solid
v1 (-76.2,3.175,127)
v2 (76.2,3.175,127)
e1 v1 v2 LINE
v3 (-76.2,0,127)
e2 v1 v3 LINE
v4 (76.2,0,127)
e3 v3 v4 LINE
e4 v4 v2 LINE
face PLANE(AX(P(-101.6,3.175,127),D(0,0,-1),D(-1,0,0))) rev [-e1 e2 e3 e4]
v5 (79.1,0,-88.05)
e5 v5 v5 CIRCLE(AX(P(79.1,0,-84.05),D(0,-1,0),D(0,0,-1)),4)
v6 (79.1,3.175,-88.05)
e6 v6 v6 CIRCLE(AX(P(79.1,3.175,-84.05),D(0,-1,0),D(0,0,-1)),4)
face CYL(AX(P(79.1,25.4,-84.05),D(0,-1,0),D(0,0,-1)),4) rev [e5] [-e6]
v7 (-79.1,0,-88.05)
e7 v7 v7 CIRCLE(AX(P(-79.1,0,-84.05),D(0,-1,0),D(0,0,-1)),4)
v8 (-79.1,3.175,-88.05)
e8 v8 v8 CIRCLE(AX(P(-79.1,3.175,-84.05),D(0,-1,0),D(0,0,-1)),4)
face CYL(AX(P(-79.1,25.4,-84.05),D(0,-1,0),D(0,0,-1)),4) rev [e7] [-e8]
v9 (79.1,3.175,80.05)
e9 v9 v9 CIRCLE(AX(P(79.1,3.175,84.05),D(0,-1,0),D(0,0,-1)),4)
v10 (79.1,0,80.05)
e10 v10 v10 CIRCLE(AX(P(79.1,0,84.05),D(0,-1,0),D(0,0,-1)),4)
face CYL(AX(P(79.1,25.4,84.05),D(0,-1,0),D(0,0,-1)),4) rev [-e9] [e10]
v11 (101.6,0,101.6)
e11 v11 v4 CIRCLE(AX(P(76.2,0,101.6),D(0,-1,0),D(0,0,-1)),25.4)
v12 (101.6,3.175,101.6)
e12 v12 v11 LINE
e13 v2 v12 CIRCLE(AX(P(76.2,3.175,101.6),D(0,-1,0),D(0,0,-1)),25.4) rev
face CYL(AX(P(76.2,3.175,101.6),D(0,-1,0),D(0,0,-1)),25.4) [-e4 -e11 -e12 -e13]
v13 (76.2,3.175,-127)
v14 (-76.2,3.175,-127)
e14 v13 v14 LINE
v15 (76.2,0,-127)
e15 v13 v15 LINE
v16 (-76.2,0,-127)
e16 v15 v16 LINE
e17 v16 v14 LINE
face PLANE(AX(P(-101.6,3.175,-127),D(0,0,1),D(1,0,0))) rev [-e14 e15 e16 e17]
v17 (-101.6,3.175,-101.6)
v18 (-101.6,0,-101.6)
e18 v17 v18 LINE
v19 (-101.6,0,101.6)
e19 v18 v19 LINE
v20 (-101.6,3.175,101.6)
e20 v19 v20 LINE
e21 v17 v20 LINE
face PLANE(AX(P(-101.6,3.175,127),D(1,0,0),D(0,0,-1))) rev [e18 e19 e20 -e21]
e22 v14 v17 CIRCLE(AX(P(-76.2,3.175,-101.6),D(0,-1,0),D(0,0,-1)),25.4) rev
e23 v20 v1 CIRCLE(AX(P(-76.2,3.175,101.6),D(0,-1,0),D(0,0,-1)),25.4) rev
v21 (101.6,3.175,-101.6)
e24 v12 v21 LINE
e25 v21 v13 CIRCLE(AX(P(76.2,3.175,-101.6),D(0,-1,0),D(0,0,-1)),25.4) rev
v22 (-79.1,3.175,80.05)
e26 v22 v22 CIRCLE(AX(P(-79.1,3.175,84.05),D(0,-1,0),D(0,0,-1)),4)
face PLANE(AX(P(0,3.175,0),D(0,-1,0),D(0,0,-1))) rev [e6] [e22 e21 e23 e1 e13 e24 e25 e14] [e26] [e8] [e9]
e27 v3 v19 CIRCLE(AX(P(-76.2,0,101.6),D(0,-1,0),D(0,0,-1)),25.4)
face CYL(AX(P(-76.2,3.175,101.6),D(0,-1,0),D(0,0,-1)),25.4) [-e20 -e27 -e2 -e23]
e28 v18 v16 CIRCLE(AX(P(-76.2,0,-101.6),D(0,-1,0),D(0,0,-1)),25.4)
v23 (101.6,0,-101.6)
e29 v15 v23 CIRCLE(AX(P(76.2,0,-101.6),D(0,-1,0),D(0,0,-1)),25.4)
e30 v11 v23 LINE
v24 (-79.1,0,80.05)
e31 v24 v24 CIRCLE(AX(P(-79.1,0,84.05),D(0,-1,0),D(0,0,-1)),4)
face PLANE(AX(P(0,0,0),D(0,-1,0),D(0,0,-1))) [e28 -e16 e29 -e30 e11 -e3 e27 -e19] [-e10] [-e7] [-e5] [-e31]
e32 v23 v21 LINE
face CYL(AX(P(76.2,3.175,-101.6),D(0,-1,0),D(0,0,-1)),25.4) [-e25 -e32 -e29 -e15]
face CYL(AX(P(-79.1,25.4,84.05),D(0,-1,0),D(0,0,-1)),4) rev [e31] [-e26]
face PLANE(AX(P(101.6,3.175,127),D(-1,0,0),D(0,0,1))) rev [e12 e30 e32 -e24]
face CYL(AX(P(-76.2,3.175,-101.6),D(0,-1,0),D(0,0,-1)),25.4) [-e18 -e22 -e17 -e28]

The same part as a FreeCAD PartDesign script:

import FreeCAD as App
import Part
import Sketcher
from FreeCAD import Vector
Q = App.Units.Quantity


def edges_at(feature, points):
    """Names of the edges that pass closest to the given points."""
    edges = feature.Shape.Edges
    near = lambda p: min(range(len(edges)), key=lambda i: edges[i].distToShape(Part.Vertex(*p))[0])
    return sorted({f"Edge{near(p) + 1}" for p in points})


def add_polygon(sketch, points):
    """Adds a closed chain of lines whose ends are joined by coincident constraints."""
    first, n = sketch.GeometryCount, len(points)
    for a, b in zip(points, points[1:] + points[:1]):
        sketch.addGeometry(Part.LineSegment(App.Vector(*a, 0), App.Vector(*b, 0)), False)
    for i in range(n):
        sketch.addConstraint(Sketcher.Constraint("Coincident", first + i, 2, first + (i + 1) % n, 1))

doc = App.newDocument("Part")
body = doc.addObject("PartDesign::Body", "Body")

# Sketch on XZ plane
sketch1 = doc.addObject("Sketcher::SketchObject", "Sketch")
body.addObject(sketch1)
sketch1.AttachmentSupport = (doc.XZ_Plane, [""])
sketch1.MapMode = "FlatFace"
add_polygon(sketch1, [(-102, -127), (-102, 127), (102, 127), (102, -127)])  # lines 0-3
sketch1.addConstraint([
    Sketcher.Constraint("Vertical", 0),
    Sketcher.Constraint("Horizontal", 1),
    Sketcher.Constraint("Vertical", 2),
    Sketcher.Constraint("Horizontal", 3),
    Sketcher.Constraint("Symmetric", 0, 2, 2, 2, -1, 1),
    Sketcher.Constraint("DistanceX", 1, 1, 1, 2, Q("8 in")),
    Sketcher.Constraint("DistanceY", 0, 1, 0, 2, Q("10 in")),
])
pad1 = doc.addObject("PartDesign::Pad", "Pad")
body.addObject(pad1)
pad1.Profile = sketch1
pad1.Length = Q("0.125 in")
pad1.Reversed = True
doc.recompute()

fillet = doc.addObject("PartDesign::Fillet", "Fillet")
body.addObject(fillet)
fillet.Base = (pad1, edges_at(pad1, [
    (101.6, 1.587, 127),
    (-101.6, 1.587, 127),
    (-101.6, 1.587, -127),
    (101.6, 1.587, -127),
]))
fillet.Radius = Q("1 in")

# Sketch on XZ plane
sketch2 = doc.addObject("Sketcher::SketchObject", "Sketch001")
body.addObject(sketch2)
sketch2.AttachmentSupport = (doc.XZ_Plane, [""])
sketch2.MapMode = "FlatFace"
sketch2.addGeometry([
    Part.Circle(Vector(-79.1, 84.1, 0), Vector(0, 0, 1), 4),
    Part.Circle(Vector(79.1, 84.1, 0), Vector(0, 0, 1), 4),
    Part.Circle(Vector(79.1, -84.1, 0), Vector(0, 0, 1), 4),
    Part.Circle(Vector(-79.1, -84.1, 0), Vector(0, 0, 1), 4),
], False)
sketch2.addConstraint([
    Sketcher.Constraint("Equal", 0, 1),
    Sketcher.Constraint("Equal", 1, 2),
    Sketcher.Constraint("Equal", 2, 3),
    Sketcher.Constraint("Symmetric", 0, 3, 2, 3, -1, 1),
    Sketcher.Constraint("Symmetric", 1, 3, 3, 3, -1, 1),
    Sketcher.Constraint("Symmetric", 0, 3, 1, 3, -2),
    Sketcher.Constraint("Diameter", 0, 8.0),
    Sketcher.Constraint("DistanceX", 0, 3, -1, 1, 79.1),
    Sketcher.Constraint("DistanceY", -1, 1, 0, 3, 84.05),
])
pocket1 = doc.addObject("PartDesign::Pocket", "Pocket")
body.addObject(pocket1)
pocket1.Profile = sketch2
pocket1.Length = Q("1 in")

doc.recompute()
